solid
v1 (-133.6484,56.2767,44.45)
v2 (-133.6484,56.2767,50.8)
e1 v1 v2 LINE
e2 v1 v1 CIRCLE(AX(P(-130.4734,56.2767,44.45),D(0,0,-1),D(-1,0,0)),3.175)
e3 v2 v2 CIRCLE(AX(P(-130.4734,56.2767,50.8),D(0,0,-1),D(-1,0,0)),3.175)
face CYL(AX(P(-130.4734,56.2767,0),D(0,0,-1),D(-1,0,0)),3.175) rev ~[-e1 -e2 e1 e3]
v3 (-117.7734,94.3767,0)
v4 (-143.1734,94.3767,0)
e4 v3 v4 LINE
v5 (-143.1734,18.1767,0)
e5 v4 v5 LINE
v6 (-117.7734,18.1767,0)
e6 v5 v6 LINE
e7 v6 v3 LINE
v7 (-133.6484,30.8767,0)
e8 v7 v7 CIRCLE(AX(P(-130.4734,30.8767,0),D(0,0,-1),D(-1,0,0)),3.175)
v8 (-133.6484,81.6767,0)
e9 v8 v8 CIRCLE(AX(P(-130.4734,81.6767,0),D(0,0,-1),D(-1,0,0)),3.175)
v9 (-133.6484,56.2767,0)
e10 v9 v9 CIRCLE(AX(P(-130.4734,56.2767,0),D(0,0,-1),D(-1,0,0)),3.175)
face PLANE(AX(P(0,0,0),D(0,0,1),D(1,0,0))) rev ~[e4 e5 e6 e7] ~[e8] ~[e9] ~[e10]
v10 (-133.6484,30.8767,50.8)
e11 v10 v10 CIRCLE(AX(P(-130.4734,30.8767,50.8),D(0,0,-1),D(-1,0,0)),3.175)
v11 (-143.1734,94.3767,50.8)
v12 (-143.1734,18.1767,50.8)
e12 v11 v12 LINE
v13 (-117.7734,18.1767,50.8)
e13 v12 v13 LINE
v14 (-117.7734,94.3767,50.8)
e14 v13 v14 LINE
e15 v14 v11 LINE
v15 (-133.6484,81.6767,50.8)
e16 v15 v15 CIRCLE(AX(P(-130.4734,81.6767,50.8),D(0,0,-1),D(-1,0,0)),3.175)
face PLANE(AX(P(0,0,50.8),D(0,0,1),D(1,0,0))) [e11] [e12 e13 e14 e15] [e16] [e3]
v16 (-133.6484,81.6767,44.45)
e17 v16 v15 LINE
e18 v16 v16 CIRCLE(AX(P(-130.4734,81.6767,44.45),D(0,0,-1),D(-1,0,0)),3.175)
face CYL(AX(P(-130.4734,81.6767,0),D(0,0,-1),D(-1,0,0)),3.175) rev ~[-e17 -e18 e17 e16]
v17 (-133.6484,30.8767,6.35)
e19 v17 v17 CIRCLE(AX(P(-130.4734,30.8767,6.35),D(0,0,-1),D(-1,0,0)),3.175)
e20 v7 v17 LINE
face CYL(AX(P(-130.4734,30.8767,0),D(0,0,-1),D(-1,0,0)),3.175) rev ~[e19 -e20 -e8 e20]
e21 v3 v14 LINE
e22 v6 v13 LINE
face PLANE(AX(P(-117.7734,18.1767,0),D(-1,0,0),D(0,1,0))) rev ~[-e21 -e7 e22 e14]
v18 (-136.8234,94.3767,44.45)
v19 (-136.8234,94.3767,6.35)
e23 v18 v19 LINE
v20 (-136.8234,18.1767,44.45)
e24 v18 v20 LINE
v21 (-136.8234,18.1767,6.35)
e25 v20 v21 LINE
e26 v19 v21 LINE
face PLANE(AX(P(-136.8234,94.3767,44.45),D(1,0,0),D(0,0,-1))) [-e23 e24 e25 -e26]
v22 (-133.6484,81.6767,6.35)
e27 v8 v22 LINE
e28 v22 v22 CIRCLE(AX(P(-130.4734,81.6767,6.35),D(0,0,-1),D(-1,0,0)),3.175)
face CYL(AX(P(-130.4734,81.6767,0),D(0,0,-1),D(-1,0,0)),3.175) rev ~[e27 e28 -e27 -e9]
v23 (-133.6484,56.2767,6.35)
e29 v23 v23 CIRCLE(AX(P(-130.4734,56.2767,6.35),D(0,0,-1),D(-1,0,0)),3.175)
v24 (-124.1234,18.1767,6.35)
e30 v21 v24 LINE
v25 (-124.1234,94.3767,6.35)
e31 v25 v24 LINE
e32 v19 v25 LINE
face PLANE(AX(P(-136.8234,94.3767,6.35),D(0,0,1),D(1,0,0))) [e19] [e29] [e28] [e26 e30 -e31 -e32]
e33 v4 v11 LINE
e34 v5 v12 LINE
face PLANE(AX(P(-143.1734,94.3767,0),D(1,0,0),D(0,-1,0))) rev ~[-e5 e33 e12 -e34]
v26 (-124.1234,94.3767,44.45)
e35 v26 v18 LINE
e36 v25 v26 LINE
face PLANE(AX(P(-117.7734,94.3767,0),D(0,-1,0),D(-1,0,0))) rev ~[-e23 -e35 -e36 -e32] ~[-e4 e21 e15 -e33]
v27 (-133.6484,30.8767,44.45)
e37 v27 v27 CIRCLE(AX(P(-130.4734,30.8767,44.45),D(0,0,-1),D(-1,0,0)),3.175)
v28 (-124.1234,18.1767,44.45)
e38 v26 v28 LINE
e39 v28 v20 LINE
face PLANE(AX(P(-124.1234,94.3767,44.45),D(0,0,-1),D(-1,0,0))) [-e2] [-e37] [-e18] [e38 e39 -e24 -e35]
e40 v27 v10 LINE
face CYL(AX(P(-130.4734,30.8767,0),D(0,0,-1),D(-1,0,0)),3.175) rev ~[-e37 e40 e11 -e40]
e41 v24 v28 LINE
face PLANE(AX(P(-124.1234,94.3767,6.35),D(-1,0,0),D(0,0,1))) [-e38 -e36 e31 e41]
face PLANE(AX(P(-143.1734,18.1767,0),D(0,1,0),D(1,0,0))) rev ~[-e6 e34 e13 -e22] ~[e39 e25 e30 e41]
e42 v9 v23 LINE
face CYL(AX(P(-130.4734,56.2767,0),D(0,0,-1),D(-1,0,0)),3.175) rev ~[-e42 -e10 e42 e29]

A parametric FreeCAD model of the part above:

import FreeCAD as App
import Part
import Sketcher
from FreeCAD import Vector
Q = App.Units.Quantity


def add_polygon(sketch, points):
    """Adds a closed chain of lines whose ends are joined by coincident constraints."""
    first, n = sketch.GeometryCount, len(points)
    for a, b in zip(points, points[1:] + points[:1]):
        sketch.addGeometry(Part.LineSegment(App.Vector(*a, 0), App.Vector(*b, 0)), False)
    for i in range(n):
        sketch.addConstraint(Sketcher.Constraint("Coincident", first + i, 2, first + (i + 1) % n, 1))

doc = App.newDocument("Part")
body = doc.addObject("PartDesign::Body", "Body")

# Sketch on XY plane
sketch1 = doc.addObject("Sketcher::SketchObject", "Sketch")
body.addObject(sketch1)
sketch1.AttachmentSupport = (doc.XY_Plane, [""])
sketch1.MapMode = "FlatFace"
add_polygon(sketch1, [(-143, 94), (-143, 18), (-118, 18), (-118, 94)])  # lines 0-3
sketch1.addConstraint([
    Sketcher.Constraint("Vertical", 0),
    Sketcher.Constraint("Horizontal", 1),
    Sketcher.Constraint("Vertical", 2),
    Sketcher.Constraint("Horizontal", 3),
    Sketcher.Constraint("DistanceX", 1, 1, 1, 2, Q("1 in")),
    Sketcher.Constraint("DistanceY", 0, 2, 0, 1, Q("3 in")),
    Sketcher.Constraint("DistanceX", 0, 2, -1, 1, 143.1734),
    Sketcher.Constraint("DistanceY", -1, 1, 0, 2, 18.1767),
])
pad1 = doc.addObject("PartDesign::Pad", "Pad")
body.addObject(pad1)
pad1.Profile = sketch1
pad1.Length = Q("2 in")

# Sketch on XZ plane
sketch2 = doc.addObject("Sketcher::SketchObject", "Sketch001")
body.addObject(sketch2)
sketch2.AttachmentSupport = (doc.XZ_Plane, [""])
sketch2.MapMode = "FlatFace"
sketch2.AttachmentOffset = App.Placement(Vector(0, 0, -94.3767), App.Rotation())
add_polygon(sketch2, [(-137, 6), (-137, 44), (-124, 44), (-124, 6)])  # lines 0-3
sketch2.addConstraint([
    Sketcher.Constraint("Vertical", 0),
    Sketcher.Constraint("Horizontal", 1),
    Sketcher.Constraint("Vertical", 2),
    Sketcher.Constraint("Horizontal", 3),
    Sketcher.Constraint("DistanceY", -1, 1, 2, 2, Q("0.25 in")),
    Sketcher.Constraint("DistanceX", 1, 1, 1, 2, Q("0.5 in")),
    Sketcher.Constraint("DistanceY", 0, 1, 0, 2, Q("1.5 in")),
    Sketcher.Constraint("DistanceX", 0, 2, -1, 1, 136.8234),
])
pocket1 = doc.addObject("PartDesign::Pocket", "Pocket")
body.addObject(pocket1)
pocket1.Profile = sketch2
pocket1.Type = "ThroughAll"
pocket1.Reversed = True

# Sketch on XY plane
sketch3 = doc.addObject("Sketcher::SketchObject", "Sketch002")
body.addObject(sketch3)
sketch3.AttachmentSupport = (doc.XY_Plane, [""])
sketch3.MapMode = "FlatFace"
sketch3.addGeometry([
    Part.Circle(Vector(-130.5, 30.9, 0), Vector(0, 0, 1), 3.2),
    Part.Circle(Vector(-130.5, 56.3, 0), Vector(0, 0, 1), 3.2),
    Part.Circle(Vector(-130.5, 81.7, 0), Vector(0, 0, 1), 3.2),
], False)
sketch3.addConstraint([
    Sketcher.Constraint("Equal", 0, 1),
    Sketcher.Constraint("Equal", 1, 2),
    Sketcher.Constraint("Vertical", 0, 3, 1, 3),
    Sketcher.Constraint("Vertical", 1, 3, 2, 3),
    Sketcher.Constraint("Diameter", 0, Q("0.25 in")),
    Sketcher.Constraint("DistanceY", 0, 3, 1, 3, Q("1 in")),
    Sketcher.Constraint("DistanceY", 1, 3, 2, 3, Q("1 in")),
    Sketcher.Constraint("DistanceX", 0, 3, -1, 1, 130.4734),
    Sketcher.Constraint("DistanceY", -1, 1, 0, 3, 30.8767),
])
pocket2 = doc.addObject("PartDesign::Pocket", "Pocket001")
body.addObject(pocket2)
pocket2.Profile = sketch3
pocket2.Type = "ThroughAll"
pocket2.Reversed = True

doc.recompute()
